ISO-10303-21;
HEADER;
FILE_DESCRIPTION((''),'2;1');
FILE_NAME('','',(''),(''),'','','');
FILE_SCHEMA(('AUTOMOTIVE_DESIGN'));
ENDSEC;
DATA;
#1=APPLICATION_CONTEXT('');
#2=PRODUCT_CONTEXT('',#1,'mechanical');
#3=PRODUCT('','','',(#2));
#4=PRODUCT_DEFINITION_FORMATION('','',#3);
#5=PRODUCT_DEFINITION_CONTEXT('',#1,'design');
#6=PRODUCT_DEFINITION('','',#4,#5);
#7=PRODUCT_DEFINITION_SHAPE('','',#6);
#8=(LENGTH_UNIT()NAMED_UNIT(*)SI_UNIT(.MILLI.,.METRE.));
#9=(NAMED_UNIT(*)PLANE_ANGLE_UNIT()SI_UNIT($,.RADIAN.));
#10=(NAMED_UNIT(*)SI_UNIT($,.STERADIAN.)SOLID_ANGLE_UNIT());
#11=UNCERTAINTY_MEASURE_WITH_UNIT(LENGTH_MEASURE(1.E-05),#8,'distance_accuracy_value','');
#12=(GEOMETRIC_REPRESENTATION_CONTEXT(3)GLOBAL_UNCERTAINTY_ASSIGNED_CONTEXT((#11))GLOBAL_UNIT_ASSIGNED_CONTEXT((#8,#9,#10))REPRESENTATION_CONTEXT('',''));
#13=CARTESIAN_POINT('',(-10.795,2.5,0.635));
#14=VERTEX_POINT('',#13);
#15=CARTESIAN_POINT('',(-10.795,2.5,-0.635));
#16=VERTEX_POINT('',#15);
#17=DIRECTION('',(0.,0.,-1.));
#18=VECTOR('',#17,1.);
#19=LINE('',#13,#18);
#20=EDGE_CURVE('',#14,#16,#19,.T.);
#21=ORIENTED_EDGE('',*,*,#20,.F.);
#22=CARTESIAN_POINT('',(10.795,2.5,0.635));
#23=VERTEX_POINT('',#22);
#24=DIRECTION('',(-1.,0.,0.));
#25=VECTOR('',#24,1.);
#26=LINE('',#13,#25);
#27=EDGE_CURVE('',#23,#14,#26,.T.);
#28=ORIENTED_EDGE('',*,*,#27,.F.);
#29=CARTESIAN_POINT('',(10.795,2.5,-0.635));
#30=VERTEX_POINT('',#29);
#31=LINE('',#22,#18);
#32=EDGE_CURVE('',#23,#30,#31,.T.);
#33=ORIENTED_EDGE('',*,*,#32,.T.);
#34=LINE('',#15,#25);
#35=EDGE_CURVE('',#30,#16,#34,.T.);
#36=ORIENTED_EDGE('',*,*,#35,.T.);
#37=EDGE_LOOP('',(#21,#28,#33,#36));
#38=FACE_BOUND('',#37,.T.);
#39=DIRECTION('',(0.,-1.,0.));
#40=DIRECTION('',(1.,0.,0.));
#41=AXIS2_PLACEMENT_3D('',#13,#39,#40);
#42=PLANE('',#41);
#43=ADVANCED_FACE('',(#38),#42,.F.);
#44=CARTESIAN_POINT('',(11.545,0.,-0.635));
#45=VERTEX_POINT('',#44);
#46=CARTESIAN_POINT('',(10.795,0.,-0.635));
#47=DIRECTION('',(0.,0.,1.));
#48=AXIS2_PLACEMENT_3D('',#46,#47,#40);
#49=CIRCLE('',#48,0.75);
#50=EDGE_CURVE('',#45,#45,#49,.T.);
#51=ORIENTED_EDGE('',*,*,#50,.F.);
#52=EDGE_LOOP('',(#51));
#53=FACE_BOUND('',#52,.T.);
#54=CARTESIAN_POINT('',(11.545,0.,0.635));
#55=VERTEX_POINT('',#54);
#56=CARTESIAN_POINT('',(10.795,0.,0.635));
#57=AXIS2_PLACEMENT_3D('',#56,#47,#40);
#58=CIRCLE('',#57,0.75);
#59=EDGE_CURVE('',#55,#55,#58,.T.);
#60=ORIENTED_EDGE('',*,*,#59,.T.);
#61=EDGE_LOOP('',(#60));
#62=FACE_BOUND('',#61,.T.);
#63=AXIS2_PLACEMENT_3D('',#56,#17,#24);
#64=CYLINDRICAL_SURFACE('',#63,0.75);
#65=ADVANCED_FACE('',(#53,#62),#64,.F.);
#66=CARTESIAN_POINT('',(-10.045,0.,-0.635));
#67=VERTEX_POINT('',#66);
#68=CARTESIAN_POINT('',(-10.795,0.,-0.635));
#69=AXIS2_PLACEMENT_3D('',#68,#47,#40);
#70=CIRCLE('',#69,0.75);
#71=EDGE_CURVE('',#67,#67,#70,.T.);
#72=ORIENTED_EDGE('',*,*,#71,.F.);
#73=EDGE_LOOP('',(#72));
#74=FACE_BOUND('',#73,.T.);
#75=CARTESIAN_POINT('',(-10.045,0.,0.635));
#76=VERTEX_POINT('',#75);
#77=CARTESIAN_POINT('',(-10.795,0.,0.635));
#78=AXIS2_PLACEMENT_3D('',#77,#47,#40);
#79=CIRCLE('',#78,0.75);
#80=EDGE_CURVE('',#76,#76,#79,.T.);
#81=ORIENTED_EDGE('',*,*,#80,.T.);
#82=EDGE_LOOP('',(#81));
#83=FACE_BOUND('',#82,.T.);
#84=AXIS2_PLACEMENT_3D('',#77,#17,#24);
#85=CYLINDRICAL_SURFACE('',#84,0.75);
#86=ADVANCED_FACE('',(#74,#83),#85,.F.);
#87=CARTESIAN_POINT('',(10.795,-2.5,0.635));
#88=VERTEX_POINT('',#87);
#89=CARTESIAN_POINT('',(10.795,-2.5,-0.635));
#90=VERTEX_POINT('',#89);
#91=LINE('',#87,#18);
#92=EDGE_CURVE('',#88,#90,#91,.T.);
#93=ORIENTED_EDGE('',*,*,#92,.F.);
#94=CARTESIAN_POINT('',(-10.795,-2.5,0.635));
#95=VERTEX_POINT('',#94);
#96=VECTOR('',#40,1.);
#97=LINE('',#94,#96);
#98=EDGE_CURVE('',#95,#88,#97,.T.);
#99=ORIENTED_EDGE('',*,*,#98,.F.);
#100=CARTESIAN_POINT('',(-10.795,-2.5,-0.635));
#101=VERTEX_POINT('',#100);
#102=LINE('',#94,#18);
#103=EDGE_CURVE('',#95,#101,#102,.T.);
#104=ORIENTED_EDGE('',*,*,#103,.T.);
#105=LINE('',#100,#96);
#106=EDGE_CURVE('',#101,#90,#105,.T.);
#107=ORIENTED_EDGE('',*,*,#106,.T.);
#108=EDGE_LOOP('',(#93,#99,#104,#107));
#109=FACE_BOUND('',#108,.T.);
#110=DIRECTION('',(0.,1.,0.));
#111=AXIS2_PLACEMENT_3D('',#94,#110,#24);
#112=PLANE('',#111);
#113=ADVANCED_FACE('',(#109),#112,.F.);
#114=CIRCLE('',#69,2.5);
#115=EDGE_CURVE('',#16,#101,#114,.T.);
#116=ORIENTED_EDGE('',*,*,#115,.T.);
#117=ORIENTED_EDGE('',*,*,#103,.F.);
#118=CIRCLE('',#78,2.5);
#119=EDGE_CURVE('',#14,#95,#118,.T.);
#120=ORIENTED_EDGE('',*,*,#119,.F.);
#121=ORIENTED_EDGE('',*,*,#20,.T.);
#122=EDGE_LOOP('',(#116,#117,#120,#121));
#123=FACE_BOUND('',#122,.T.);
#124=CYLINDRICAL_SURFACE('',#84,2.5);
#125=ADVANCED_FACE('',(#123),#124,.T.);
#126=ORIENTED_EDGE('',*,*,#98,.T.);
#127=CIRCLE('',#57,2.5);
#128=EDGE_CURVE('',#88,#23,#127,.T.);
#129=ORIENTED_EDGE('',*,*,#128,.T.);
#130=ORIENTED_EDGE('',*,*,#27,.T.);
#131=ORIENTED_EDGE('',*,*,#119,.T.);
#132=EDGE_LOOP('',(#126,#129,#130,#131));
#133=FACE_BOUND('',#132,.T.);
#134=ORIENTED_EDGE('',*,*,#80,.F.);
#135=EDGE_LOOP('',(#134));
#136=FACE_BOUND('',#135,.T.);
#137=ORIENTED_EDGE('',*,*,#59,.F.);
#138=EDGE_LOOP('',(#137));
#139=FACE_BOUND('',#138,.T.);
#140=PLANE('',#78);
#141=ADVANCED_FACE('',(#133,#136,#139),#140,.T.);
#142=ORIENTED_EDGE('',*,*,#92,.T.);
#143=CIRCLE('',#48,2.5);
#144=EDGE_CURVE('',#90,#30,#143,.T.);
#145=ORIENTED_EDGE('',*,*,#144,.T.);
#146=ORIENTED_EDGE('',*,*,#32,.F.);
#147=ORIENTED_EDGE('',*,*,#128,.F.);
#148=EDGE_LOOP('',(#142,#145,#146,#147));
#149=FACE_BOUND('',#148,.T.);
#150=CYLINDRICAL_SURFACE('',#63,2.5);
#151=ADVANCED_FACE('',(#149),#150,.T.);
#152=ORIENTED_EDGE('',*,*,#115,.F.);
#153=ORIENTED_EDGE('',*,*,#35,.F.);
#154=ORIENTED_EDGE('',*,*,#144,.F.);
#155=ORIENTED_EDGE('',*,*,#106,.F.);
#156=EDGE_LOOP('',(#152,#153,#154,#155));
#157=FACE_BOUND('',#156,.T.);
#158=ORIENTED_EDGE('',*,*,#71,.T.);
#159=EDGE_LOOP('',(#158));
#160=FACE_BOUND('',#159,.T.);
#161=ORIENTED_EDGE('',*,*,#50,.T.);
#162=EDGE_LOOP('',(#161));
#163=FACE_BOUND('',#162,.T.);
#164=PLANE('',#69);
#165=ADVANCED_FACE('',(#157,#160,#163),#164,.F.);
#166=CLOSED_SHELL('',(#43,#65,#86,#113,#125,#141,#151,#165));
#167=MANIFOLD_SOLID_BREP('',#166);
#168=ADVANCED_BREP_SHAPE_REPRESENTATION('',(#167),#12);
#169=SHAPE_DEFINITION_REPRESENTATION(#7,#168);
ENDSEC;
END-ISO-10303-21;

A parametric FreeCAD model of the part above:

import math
import FreeCAD as App
import Part
import Sketcher

doc = App.newDocument("Part")
body = doc.addObject("PartDesign::Body", "Body")

# Sketch on XY plane
sketch1 = body.newObject("Sketcher::SketchObject", "Sketch")
sketch1.AttachmentSupport = (doc.getObject("XY_Plane"), [""])
sketch1.MapMode = "FlatFace"
sketch1.addGeometry([
    Part.LineSegment(App.Vector(10.8, 2.5, 0), App.Vector(-10.8, 2.5, 0)),  # 0
    Part.ArcOfCircle(Part.Circle(App.Vector(-10.8, 0, 0), App.Vector(0, 0, 1), 2.5), math.radians(90), math.radians(270)),  # 1
    Part.LineSegment(App.Vector(-10.8, -2.5, 0), App.Vector(10.8, -2.5, 0)),  # 2
    Part.ArcOfCircle(Part.Circle(App.Vector(10.8, 0, 0), App.Vector(0, 0, 1), 2.5), math.radians(-90), math.radians(90)),  # 3
    Part.Circle(App.Vector(10.8, 0, 0), App.Vector(0, 0, 1), 0.8),  # 4
    Part.Circle(App.Vector(-10.8, 0, 0), App.Vector(0, 0, 1), 0.8),  # 5
], False)
sketch1.addConstraint([
    Sketcher.Constraint("Tangent", 0, 2, 1, 1),
    Sketcher.Constraint("Tangent", 1, 2, 2, 1),
    Sketcher.Constraint("Tangent", 2, 2, 3, 1),
    Sketcher.Constraint("Tangent", 3, 2, 0, 1),
    Sketcher.Constraint("Horizontal", 0),
    Sketcher.Constraint("Horizontal", 2),
    Sketcher.Constraint("Coincident", 4, 3, 3, 3),
    Sketcher.Constraint("Coincident", 5, 3, 1, 3),
    Sketcher.Constraint("Equal", 4, 5),
    Sketcher.Constraint("Symmetric", 1, 3, 3, 3, -1, 1),
    Sketcher.Constraint("Diameter", 4, 1.5),
    Sketcher.Constraint("Radius", 1, 2.5),
    Sketcher.Constraint("DistanceX", 0, 2, 0, 1, 21.59),
])
pad1 = body.newObject("PartDesign::Pad", "Pad")
pad1.Profile = sketch1
pad1.Length = 1.27
pad1.Midplane = True

doc.recompute()
